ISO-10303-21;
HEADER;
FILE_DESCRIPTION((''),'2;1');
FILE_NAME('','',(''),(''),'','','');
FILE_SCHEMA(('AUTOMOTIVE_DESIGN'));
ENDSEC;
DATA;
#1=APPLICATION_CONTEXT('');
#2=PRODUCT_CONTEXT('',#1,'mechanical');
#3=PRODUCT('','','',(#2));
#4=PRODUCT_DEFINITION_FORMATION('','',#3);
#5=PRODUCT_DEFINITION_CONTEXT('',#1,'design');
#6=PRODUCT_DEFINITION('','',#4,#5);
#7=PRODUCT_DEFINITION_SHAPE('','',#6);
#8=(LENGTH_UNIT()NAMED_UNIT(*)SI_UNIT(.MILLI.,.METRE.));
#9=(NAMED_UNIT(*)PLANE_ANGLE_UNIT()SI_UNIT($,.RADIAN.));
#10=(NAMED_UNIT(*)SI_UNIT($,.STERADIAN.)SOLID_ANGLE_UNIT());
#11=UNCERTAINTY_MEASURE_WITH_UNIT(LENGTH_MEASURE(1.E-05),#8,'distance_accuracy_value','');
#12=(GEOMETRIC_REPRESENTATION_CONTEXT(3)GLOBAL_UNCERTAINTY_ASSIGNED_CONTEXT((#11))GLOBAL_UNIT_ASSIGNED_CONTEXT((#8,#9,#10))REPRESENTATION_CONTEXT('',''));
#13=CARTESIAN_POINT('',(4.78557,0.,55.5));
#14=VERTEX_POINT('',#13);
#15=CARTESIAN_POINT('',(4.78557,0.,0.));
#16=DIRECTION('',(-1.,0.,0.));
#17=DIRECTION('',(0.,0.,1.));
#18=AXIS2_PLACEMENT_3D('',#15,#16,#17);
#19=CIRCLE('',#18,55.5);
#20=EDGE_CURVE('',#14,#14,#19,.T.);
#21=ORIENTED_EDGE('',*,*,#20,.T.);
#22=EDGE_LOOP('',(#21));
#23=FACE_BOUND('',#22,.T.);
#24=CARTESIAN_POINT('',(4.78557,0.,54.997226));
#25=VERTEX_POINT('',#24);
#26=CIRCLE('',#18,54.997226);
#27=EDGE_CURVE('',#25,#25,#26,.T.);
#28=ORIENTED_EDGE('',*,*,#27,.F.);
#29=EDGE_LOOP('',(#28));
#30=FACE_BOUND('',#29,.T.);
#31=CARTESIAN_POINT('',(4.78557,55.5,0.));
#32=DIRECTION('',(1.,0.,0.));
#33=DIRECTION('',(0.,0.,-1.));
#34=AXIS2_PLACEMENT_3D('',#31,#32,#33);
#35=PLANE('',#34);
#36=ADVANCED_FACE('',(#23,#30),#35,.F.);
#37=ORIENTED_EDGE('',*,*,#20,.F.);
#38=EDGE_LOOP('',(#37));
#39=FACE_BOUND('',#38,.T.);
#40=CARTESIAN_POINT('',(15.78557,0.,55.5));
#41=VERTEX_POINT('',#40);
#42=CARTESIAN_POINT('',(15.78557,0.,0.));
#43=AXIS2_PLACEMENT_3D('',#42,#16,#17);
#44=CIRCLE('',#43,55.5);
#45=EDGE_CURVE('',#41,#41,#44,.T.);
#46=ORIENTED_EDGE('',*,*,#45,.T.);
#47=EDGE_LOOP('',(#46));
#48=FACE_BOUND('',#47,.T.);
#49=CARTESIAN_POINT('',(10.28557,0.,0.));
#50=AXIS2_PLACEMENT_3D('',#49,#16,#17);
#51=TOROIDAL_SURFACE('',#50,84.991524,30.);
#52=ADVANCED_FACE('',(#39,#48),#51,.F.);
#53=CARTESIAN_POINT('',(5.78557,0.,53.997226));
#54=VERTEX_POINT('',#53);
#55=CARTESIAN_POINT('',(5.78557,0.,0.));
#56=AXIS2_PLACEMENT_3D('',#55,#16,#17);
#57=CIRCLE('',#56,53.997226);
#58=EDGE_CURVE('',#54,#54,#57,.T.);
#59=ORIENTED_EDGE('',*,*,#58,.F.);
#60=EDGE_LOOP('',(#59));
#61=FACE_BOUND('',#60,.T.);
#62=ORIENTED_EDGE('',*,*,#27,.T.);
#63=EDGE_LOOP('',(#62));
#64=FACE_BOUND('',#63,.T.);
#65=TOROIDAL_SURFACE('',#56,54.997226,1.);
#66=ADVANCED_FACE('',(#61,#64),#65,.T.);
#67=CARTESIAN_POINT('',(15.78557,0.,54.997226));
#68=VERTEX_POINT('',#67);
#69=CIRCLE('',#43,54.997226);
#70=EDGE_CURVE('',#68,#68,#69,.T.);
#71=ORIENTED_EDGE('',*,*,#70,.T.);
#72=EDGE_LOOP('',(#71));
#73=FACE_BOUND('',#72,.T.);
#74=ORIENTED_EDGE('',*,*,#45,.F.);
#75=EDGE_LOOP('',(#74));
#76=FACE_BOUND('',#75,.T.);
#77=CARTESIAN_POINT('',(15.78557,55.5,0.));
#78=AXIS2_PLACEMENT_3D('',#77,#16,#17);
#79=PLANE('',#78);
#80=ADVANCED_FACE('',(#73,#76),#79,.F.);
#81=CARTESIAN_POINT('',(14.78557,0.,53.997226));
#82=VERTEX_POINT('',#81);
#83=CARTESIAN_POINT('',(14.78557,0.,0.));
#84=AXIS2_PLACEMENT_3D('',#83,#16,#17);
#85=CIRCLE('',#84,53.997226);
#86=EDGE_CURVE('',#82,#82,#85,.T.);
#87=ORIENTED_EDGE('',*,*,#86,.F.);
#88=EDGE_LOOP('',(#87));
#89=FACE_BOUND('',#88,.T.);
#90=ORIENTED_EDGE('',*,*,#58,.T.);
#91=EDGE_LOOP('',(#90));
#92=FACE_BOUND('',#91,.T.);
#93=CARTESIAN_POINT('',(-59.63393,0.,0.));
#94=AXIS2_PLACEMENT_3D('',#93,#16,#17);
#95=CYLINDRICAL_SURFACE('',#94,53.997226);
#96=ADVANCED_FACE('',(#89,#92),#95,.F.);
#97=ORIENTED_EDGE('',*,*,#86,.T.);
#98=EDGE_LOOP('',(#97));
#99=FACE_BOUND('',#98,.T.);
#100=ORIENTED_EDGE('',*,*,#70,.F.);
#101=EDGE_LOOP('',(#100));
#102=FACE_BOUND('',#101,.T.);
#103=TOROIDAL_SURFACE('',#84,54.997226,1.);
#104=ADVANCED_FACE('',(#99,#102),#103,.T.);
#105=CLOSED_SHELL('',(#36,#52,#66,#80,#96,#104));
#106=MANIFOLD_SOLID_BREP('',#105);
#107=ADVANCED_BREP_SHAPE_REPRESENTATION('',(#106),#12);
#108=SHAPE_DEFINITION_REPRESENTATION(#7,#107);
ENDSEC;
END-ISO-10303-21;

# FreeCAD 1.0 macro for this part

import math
import FreeCAD as App
import Part
import Sketcher
from FreeCAD import Vector
Q = App.Units.Quantity

doc = App.newDocument("Part")
body = doc.addObject("PartDesign::Body", "Body")

# Sketch on XY plane
sketch1 = doc.addObject("Sketcher::SketchObject", "Sketch")
body.addObject(sketch1)
sketch1.AttachmentSupport = (doc.XY_Plane, [""])
sketch1.MapMode = "FlatFace"
sketch1.addGeometry([
    Part.LineSegment(Vector(5.8, 54, 0), Vector(14.8, 54, 0)),  # 0
    Part.ArcOfCircle(Part.Circle(Vector(14.8, 55, 0), Vector(0, 0, 1), 1), math.radians(-90), math.radians(0)),  # 1
    Part.LineSegment(Vector(15.8, 55, 0), Vector(15.8, 55.5, 0)),  # 2
    Part.ArcOfCircle(Part.Circle(Vector(10.3, 85, 0), Vector(0, 0, 1), 30), math.radians(-101), math.radians(-79)),  # 3
    Part.LineSegment(Vector(4.8, 55.5, 0), Vector(4.8, 55, 0)),  # 4
    Part.ArcOfCircle(Part.Circle(Vector(5.8, 55, 0), Vector(0, 0, 1), 1), math.radians(-180), math.radians(-90)),  # 5
], False)
sketch1.addConstraint([
    Sketcher.Constraint("Tangent", 0, 2, 1, 1),
    Sketcher.Constraint("Tangent", 1, 2, 2, 1),
    Sketcher.Constraint("Coincident", 2, 2, 3, 2),
    Sketcher.Constraint("Coincident", 3, 1, 4, 1),
    Sketcher.Constraint("Tangent", 4, 2, 5, 1),
    Sketcher.Constraint("Tangent", 5, 2, 0, 1),
    Sketcher.Constraint("Horizontal", 0),
    Sketcher.Constraint("Vertical", 2),
    Sketcher.Constraint("Vertical", 4),
    Sketcher.Constraint("Equal", 1, 5),
    Sketcher.Constraint("Horizontal", 2, 2, 3, 1),
    Sketcher.Constraint("Radius", 1, Q("1 mm")),
    Sketcher.Constraint("Radius", 3, Q("30 mm")),
    Sketcher.Constraint("DistanceX", 0, 1, 0, 2, Q("9 mm")),
    Sketcher.Constraint("DistanceY", -1, 1, 2, 2, Q("55.5 mm")),
    Sketcher.Constraint("DistanceY", 1, 3, 3, 3, Q("29.994299 mm")),
    Sketcher.Constraint("DistanceX", -1, 1, 1, 3, Q("14.78557 mm")),
])
revolution = doc.addObject("PartDesign::Revolution", "Revolution")
body.addObject(revolution)
revolution.Profile = sketch1
revolution.ReferenceAxis = (sketch1, ["H_Axis"])
revolution.Angle = 360

doc.recompute()
